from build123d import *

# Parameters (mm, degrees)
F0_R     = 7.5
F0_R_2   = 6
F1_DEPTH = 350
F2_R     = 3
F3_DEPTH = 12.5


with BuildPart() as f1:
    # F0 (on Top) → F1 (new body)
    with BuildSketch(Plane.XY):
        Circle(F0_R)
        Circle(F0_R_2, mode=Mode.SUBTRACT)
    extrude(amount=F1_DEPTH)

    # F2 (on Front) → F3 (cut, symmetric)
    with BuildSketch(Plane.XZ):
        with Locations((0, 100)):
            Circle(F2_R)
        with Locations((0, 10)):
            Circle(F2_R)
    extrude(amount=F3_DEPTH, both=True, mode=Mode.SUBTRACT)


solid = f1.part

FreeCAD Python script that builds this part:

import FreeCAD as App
import Part
import Sketcher
Q = App.Units.Quantity

doc = App.newDocument("Part")
body = doc.addObject("PartDesign::Body", "Body")

# Sketch on XY plane
sketch1 = doc.addObject("Sketcher::SketchObject", "Sketch")
body.addObject(sketch1)
sketch1.AttachmentSupport = (doc.XY_Plane, [""])
sketch1.MapMode = "FlatFace"
sketch1.addGeometry([
    Part.Circle(App.Vector(0, 0, 0), App.Vector(0, 0, 1), 7.5),
    Part.Circle(App.Vector(0, 0, 0), App.Vector(0, 0, 1), 6),
], False)
sketch1.addConstraint([
    Sketcher.Constraint("Coincident", 0, 3, -1, 1),
    Sketcher.Constraint("Coincident", 1, 3, -1, 1),
    Sketcher.Constraint("Diameter", 0, Q("15 mm")),
    Sketcher.Constraint("Diameter", 1, Q("12 mm")),
])
pad1 = doc.addObject("PartDesign::Pad", "Pad")
body.addObject(pad1)
pad1.Profile = sketch1
pad1.Length = 350

# Sketch on XZ plane
sketch2 = doc.addObject("Sketcher::SketchObject", "Sketch001")
body.addObject(sketch2)
sketch2.AttachmentSupport = (doc.XZ_Plane, [""])
sketch2.MapMode = "FlatFace"
sketch2.addGeometry([
    Part.Circle(App.Vector(0, 100, 0), App.Vector(0, 0, 1), 3),
    Part.Circle(App.Vector(0, 10, 0), App.Vector(0, 0, 1), 3),
], False)
sketch2.addConstraint([
    Sketcher.Constraint("Equal", 0, 1),
    Sketcher.Constraint("PointOnObject", 0, 3, -2),
    Sketcher.Constraint("PointOnObject", 1, 3, -2),
    Sketcher.Constraint("Diameter", 0, Q("6 mm")),
    Sketcher.Constraint("DistanceY", -1, 1, 0, 3, Q("100 mm")),
    Sketcher.Constraint("DistanceY", -1, 1, 1, 3, Q("10 mm")),
])
pocket1 = doc.addObject("PartDesign::Pocket", "Pocket")
body.addObject(pocket1)
pocket1.Profile = sketch2
pocket1.Length = 25
pocket1.Midplane = True

doc.recompute()
